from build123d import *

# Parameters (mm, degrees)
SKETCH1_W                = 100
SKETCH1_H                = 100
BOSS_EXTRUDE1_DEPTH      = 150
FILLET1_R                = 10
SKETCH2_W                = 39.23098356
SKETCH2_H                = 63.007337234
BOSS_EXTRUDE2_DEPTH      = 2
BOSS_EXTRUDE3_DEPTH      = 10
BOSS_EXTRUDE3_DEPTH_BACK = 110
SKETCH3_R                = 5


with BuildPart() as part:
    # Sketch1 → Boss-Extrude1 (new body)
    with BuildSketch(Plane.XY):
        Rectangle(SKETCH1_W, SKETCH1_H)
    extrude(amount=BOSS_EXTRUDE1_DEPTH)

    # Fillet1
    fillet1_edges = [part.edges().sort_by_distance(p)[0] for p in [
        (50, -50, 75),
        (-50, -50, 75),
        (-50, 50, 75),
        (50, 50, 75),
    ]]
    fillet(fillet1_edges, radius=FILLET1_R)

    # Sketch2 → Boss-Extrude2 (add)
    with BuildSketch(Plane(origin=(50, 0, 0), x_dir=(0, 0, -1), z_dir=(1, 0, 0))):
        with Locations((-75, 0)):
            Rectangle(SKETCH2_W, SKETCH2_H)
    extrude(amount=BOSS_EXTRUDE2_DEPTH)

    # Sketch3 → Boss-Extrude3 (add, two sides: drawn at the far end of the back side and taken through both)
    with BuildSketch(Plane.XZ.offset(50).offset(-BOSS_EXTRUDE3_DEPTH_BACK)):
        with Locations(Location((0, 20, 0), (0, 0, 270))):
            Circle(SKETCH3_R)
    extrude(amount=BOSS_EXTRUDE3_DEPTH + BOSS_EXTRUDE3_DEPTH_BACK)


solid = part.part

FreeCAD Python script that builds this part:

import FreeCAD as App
import Part
import Sketcher


def edges_at(feature, points):
    """Names of the edges that pass closest to the given points."""
    edges = feature.Shape.Edges
    near = lambda p: min(range(len(edges)), key=lambda i: edges[i].distToShape(Part.Vertex(*p))[0])
    return sorted({f"Edge{near(p) + 1}" for p in points})

doc = App.newDocument("Part")
body = doc.addObject("PartDesign::Body", "Body")

# Sketch on XY plane
sketch1 = doc.addObject("Sketcher::SketchObject", "Sketch")
body.addObject(sketch1)
sketch1.AttachmentSupport = (doc.XY_Plane, [""])
sketch1.MapMode = "FlatFace"
sketch1.addGeometry([
    Part.LineSegment(App.Vector(-50, 50, 0), App.Vector(-50, -50, 0)),
    Part.LineSegment(App.Vector(-50, -50, 0), App.Vector(50, -50, 0)),
    Part.LineSegment(App.Vector(50, -50, 0), App.Vector(50, 50, 0)),
    Part.LineSegment(App.Vector(50, 50, 0), App.Vector(-50, 50, 0)),
], False)
sketch1.addConstraint([
    Sketcher.Constraint("Coincident", 0, 2, 1, 1),
    Sketcher.Constraint("Coincident", 1, 2, 2, 1),
    Sketcher.Constraint("Coincident", 2, 2, 3, 1),
    Sketcher.Constraint("Coincident", 3, 2, 0, 1),
    Sketcher.Constraint("Vertical", 0),
    Sketcher.Constraint("Horizontal", 1),
    Sketcher.Constraint("Vertical", 2),
    Sketcher.Constraint("Horizontal", 3),
    Sketcher.Constraint("Symmetric", 0, 2, 2, 2, -1, 1),
    Sketcher.Constraint("Equal", 3, 0),
    Sketcher.Constraint("DistanceX", 1, 1, 1, 2, 100.0),
])
pad1 = doc.addObject("PartDesign::Pad", "Pad")
body.addObject(pad1)
pad1.Profile = sketch1
pad1.Length = 150
doc.recompute()

fillet = doc.addObject("PartDesign::Fillet", "Fillet")
body.addObject(fillet)
fillet.Base = (pad1, edges_at(pad1, [
    (50, -50, 75),
    (-50, -50, 75),
    (-50, 50, 75),
    (50, 50, 75),
]))
fillet.Radius = 10

# Sketch on YZ plane
sketch2 = doc.addObject("Sketcher::SketchObject", "Sketch001")
body.addObject(sketch2)
sketch2.AttachmentSupport = (doc.YZ_Plane, [""])
sketch2.MapMode = "FlatFace"
sketch2.AttachmentOffset = App.Placement(App.Vector(0, 0, 50), App.Rotation())
sketch2.addGeometry([
    Part.LineSegment(App.Vector(32, 95, 0), App.Vector(-32, 95, 0)),
    Part.LineSegment(App.Vector(-32, 95, 0), App.Vector(-32, 55, 0)),
    Part.LineSegment(App.Vector(-32, 55, 0), App.Vector(32, 55, 0)),
    Part.LineSegment(App.Vector(32, 55, 0), App.Vector(32, 95, 0)),
], False)
sketch2.addConstraint([
    Sketcher.Constraint("Coincident", 0, 2, 1, 1),
    Sketcher.Constraint("Coincident", 1, 2, 2, 1),
    Sketcher.Constraint("Coincident", 2, 2, 3, 1),
    Sketcher.Constraint("Coincident", 3, 2, 0, 1),
    Sketcher.Constraint("Horizontal", 0),
    Sketcher.Constraint("Vertical", 1),
    Sketcher.Constraint("Horizontal", 2),
    Sketcher.Constraint("Vertical", 3),
    Sketcher.Constraint("DistanceX", 0, 2, 0, 1, 63.007337),
    Sketcher.Constraint("DistanceY", 1, 2, 1, 1, 39.230984),
    Sketcher.Constraint("DistanceX", 0, 2, -1, 1, 31.503669),
    Sketcher.Constraint("DistanceY", -1, 1, 0, 2, 94.615492),
])
pad2 = doc.addObject("PartDesign::Pad", "Pad001")
body.addObject(pad2)
pad2.Profile = sketch2
pad2.Length = 2

# Sketch on XZ plane
sketch3 = doc.addObject("Sketcher::SketchObject", "Sketch002")
body.addObject(sketch3)
sketch3.AttachmentSupport = (doc.XZ_Plane, [""])
sketch3.MapMode = "FlatFace"
sketch3.AttachmentOffset = App.Placement(App.Vector(0, 0, 50), App.Rotation())
sketch3.addGeometry(Part.Circle(App.Vector(0, 20, 0), App.Vector(0, 0, 1), 5), False)
sketch3.addConstraint([
    Sketcher.Constraint("PointOnObject", 0, 3, -2),
    Sketcher.Constraint("Diameter", 0, 10.0),
    Sketcher.Constraint("DistanceY", -1, 1, 0, 3, 20.0),
])
pad3 = doc.addObject("PartDesign::Pad", "Pad002")
body.addObject(pad3)
pad3.Profile = sketch3
pad3.Type = "TwoLengths"
pad3.Length = 10
pad3.Length2 = 110

doc.recompute()
